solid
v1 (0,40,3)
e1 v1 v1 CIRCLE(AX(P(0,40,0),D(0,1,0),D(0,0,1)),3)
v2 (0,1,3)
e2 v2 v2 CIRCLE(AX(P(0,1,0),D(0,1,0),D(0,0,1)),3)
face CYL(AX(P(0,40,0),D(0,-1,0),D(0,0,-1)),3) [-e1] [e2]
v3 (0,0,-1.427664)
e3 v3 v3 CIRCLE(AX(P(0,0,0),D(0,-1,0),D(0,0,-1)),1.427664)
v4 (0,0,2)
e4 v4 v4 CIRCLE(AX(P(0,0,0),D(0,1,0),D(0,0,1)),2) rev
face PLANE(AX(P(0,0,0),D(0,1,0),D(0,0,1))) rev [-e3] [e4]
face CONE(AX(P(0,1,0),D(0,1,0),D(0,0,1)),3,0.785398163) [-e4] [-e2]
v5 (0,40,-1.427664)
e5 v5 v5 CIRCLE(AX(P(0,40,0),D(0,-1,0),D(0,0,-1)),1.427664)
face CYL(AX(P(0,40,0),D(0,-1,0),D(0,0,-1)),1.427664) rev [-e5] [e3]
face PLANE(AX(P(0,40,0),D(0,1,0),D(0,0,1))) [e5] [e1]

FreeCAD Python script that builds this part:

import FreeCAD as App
import Part
import Sketcher

V = App.Vector


def edges_at(feature, points):
    """Names of the edges that pass closest to the given points."""
    edges = feature.Shape.Edges
    near = lambda p: min(range(len(edges)), key=lambda i: edges[i].distToShape(Part.Vertex(*p))[0])
    return sorted({f"Edge{near(p) + 1}" for p in points})

doc = App.newDocument("Part")
body = doc.addObject("PartDesign::Body", "Body")

# Sketch on XZ plane
sketch1 = body.newObject("Sketcher::SketchObject", "Sketch")
sketch1.AttachmentSupport = (doc.getObject("XZ_Plane"), [""])
sketch1.MapMode = "FlatFace"
sketch1.addGeometry(Part.Circle(V(0, 0, 0), V(0, 0, 1), 3), False)
sketch1.addConstraint([
    Sketcher.Constraint("Coincident", 0, 3, -1, 1),
    Sketcher.Constraint("Diameter", 0, 6.0),
])
pad1 = body.newObject("PartDesign::Pad", "Pad")
pad1.Profile = sketch1
pad1.Length = 40
pad1.Reversed = True

# Sketch on XZ plane
sketch2 = body.newObject("Sketcher::SketchObject", "Sketch001")
sketch2.AttachmentSupport = (doc.getObject("XZ_Plane"), [""])
sketch2.MapMode = "FlatFace"
sketch2.addGeometry(Part.Circle(V(0, 0, 0), V(0, 0, 1), 1.427664), False)
sketch2.addConstraint([
    Sketcher.Constraint("Coincident", 0, 3, -1, 1),
    Sketcher.Constraint("Diameter", 0, 2.855328),
])
pocket1 = body.newObject("PartDesign::Pocket", "Pocket")
pocket1.Profile = sketch2
pocket1.Type = "ThroughAll"
doc.recompute()

chamfer = body.newObject("PartDesign::Chamfer", "Chamfer")
chamfer.Base = (pocket1, edges_at(pocket1, [(0, 0, -3)]))
chamfer.Size = 1

doc.recompute()
